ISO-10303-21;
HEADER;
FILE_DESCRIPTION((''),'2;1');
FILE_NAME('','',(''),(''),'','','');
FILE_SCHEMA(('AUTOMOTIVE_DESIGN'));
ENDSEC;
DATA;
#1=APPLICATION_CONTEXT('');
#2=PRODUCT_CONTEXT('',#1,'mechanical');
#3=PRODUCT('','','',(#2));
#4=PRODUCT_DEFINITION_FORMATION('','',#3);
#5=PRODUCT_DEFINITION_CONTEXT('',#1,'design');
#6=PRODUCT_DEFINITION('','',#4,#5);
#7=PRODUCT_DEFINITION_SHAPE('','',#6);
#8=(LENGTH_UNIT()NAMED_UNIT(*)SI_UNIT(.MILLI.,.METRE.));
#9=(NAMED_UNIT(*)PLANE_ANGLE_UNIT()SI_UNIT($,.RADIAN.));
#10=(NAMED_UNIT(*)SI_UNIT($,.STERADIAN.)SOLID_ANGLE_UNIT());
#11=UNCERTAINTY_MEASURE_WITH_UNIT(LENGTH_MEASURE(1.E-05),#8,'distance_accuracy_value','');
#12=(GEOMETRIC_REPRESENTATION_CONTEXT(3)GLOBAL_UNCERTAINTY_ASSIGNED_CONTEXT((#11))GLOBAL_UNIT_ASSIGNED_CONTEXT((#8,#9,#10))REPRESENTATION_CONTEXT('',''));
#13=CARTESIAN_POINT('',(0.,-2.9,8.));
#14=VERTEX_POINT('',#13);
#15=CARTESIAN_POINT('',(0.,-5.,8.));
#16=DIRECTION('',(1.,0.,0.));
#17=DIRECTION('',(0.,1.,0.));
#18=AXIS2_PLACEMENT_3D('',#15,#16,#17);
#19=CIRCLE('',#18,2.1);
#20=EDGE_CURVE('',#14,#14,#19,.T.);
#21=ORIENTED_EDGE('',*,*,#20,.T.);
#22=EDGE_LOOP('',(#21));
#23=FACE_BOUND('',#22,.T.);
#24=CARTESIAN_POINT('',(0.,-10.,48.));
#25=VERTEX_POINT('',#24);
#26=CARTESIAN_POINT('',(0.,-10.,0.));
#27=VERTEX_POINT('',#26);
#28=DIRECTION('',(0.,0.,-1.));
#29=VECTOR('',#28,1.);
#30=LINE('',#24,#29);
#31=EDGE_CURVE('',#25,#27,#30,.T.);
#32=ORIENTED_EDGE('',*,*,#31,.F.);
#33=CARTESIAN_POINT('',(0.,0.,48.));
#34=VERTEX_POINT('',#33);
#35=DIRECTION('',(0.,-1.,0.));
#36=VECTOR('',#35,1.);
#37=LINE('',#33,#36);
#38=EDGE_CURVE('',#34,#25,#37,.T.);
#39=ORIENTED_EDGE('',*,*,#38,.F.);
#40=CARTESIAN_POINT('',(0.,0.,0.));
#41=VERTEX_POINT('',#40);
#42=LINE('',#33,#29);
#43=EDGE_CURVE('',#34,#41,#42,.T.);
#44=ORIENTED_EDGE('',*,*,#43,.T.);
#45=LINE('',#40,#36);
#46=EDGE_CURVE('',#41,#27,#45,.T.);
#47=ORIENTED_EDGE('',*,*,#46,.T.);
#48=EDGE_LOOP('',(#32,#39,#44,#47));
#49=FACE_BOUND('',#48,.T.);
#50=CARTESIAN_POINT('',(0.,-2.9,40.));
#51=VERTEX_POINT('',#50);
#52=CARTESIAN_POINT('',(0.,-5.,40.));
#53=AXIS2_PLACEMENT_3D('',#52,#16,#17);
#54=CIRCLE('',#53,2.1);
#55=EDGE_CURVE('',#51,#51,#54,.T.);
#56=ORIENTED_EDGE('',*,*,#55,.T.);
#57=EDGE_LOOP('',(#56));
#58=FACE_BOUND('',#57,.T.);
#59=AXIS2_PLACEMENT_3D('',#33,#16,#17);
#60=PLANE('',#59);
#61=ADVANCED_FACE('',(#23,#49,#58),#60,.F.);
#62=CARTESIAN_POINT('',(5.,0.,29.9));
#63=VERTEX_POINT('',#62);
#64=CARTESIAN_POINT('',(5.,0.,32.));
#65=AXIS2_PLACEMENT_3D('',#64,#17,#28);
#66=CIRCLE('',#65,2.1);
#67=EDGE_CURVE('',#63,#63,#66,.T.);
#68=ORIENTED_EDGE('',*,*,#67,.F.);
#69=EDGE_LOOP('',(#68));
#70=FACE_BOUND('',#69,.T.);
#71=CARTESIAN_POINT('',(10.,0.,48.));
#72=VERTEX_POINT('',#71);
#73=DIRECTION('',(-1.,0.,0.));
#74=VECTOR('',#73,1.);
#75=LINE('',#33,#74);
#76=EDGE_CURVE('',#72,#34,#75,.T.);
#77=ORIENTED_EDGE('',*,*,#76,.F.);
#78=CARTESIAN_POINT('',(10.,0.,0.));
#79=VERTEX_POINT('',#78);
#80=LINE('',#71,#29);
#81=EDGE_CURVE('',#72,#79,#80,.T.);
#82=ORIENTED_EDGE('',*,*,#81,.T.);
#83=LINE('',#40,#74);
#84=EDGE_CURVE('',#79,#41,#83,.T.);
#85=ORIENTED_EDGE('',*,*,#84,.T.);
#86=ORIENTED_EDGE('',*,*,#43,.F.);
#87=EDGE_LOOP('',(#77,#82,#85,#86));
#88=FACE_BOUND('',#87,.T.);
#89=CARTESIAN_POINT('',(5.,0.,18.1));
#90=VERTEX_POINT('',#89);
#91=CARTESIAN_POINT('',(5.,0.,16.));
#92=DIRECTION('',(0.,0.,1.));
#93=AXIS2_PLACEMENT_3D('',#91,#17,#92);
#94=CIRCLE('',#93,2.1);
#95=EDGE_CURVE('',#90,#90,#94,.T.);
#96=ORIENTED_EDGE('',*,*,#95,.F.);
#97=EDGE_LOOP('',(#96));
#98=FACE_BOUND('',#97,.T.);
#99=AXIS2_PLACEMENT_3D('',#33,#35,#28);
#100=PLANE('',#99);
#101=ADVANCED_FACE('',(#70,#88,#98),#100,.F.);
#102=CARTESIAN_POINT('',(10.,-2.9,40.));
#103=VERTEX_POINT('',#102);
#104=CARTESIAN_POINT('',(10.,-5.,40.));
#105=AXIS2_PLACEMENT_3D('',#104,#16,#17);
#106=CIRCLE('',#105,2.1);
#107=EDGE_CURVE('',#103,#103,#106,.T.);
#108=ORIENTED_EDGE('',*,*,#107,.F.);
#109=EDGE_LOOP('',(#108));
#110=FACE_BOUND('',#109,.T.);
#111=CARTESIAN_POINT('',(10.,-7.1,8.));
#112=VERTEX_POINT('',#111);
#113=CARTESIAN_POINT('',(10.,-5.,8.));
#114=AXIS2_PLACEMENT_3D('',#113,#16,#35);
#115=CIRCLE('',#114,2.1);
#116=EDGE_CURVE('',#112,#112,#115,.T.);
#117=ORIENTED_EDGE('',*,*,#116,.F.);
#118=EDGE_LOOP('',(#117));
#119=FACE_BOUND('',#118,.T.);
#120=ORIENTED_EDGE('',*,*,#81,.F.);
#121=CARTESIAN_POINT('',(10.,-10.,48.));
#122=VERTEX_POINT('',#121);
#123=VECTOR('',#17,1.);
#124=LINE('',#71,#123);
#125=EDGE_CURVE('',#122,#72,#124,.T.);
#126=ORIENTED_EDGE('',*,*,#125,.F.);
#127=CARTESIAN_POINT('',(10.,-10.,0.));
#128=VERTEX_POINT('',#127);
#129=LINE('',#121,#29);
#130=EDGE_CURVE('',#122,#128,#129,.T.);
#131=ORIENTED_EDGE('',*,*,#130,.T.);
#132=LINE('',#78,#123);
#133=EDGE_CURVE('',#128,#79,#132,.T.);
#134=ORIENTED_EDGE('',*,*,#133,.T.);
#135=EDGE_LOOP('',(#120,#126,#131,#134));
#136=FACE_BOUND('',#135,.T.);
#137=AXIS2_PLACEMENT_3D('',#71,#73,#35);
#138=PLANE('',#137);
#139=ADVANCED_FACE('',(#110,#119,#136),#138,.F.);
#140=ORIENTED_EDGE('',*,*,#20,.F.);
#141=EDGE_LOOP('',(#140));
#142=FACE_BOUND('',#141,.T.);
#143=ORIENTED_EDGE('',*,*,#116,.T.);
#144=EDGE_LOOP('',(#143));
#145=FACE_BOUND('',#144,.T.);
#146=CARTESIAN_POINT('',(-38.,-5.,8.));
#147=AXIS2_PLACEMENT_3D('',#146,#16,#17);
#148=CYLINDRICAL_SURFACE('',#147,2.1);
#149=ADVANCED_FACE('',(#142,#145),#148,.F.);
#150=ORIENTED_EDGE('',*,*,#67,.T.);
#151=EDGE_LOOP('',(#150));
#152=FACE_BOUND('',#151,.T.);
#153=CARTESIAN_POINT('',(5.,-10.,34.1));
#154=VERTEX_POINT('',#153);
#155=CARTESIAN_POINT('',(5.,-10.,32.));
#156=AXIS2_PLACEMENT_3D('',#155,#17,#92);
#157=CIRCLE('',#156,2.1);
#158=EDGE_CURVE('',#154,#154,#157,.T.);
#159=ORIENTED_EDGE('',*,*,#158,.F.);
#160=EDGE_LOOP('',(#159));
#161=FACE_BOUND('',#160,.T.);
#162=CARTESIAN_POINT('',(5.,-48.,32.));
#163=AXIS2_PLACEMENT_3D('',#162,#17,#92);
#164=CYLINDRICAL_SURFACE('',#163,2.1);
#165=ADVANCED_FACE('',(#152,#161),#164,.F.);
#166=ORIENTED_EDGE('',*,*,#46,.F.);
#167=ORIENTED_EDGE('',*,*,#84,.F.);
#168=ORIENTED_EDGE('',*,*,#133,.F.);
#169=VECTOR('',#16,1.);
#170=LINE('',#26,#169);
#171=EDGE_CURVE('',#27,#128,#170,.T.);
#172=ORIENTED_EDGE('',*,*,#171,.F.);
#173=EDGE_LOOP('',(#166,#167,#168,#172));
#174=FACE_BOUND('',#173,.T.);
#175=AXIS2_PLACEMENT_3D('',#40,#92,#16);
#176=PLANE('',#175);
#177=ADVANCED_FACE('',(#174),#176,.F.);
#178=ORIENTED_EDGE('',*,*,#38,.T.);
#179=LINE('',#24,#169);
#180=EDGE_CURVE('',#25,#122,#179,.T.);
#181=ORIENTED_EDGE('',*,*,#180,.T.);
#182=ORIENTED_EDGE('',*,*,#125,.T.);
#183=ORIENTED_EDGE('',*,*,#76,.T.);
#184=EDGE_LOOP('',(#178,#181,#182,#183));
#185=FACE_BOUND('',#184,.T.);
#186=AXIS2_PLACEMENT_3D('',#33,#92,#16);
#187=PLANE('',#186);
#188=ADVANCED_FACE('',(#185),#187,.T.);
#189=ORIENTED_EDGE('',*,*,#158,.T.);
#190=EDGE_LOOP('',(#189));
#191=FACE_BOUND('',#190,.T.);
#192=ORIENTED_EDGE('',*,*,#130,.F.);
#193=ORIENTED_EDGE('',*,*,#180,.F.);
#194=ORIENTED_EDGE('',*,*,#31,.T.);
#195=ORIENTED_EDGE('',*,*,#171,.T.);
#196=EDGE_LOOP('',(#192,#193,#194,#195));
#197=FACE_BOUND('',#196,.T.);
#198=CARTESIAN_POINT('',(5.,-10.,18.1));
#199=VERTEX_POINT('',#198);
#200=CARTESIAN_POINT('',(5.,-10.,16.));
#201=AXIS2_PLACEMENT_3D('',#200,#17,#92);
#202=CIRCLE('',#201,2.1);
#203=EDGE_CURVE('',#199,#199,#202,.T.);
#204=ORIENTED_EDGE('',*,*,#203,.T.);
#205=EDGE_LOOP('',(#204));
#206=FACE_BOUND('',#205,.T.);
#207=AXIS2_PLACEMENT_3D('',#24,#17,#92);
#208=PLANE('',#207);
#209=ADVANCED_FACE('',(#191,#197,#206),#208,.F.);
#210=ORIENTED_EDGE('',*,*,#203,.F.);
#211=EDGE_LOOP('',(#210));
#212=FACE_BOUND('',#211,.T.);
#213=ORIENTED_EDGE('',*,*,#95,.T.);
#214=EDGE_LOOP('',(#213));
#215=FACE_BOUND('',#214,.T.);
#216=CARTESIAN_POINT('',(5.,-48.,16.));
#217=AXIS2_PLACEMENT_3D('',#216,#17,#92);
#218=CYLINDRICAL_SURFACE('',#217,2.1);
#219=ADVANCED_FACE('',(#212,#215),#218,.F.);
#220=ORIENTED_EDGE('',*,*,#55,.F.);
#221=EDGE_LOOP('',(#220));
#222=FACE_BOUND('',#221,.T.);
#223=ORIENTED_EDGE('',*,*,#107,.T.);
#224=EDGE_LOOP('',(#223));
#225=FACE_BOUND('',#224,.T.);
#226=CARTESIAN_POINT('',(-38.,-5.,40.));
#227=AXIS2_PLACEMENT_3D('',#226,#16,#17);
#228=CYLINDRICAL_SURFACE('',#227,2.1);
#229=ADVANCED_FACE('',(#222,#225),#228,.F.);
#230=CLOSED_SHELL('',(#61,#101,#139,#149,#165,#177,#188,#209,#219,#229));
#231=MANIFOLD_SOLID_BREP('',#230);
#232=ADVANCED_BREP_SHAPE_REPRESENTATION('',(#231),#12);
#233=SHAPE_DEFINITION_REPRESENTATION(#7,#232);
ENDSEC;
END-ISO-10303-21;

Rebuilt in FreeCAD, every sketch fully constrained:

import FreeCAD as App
import Part
import Sketcher


def add_polygon(sketch, points):
    """Adds a closed chain of lines whose ends are joined by coincident constraints."""
    first, n = sketch.GeometryCount, len(points)
    for a, b in zip(points, points[1:] + points[:1]):
        sketch.addGeometry(Part.LineSegment(App.Vector(*a, 0), App.Vector(*b, 0)), False)
    for i in range(n):
        sketch.addConstraint(Sketcher.Constraint("Coincident", first + i, 2, first + (i + 1) % n, 1))

doc = App.newDocument("Part")
params = doc.addObject("Spreadsheet::Sheet", "Params")
for row, (alias, value) in enumerate([
    ("sketch1_width", "10 mm"),
    ("pad1_length", "48 mm"),
    ("sketch2_diameter", "4.2 mm"),
    ("pocket1_length", "48 mm"),
    ("sketch3_diameter", "4.2 mm"),
    ("pocket2_length", "48 mm"),
], start=1):
    params.set(f"A{row}", alias)
    params.set(f"B{row}", "=" + value)
    params.setAlias(f"B{row}", alias)

body = doc.addObject("PartDesign::Body", "Body")

# Sketch on XY plane
sketch1 = body.newObject("Sketcher::SketchObject", "Sketch")
sketch1.AttachmentSupport = (doc.getObject("XY_Plane"), [""])
sketch1.MapMode = "FlatFace"
add_polygon(sketch1, [(0, 0), (0, -10), (10, -10), (10, 0)])  # lines 0-3
sketch1.addConstraint([
    Sketcher.Constraint("Vertical", 0),
    Sketcher.Constraint("Horizontal", 1),
    Sketcher.Constraint("Vertical", 2),
    Sketcher.Constraint("Horizontal", 3),
    Sketcher.Constraint("Coincident", 3, 2, -1, 1),
    Sketcher.Constraint("Equal", 3, 0),
    Sketcher.Constraint("DistanceX", 1, 1, 1, 2, 10.0),
])
sketch1.setExpression("Constraints[10]", "Params.sketch1_width")
pad1 = body.newObject("PartDesign::Pad", "Pad")
pad1.Profile = sketch1
pad1.setExpression("Length", "Params.pad1_length")

# Sketch on YZ plane
sketch2 = body.newObject("Sketcher::SketchObject", "Sketch001")
sketch2.AttachmentSupport = (doc.getObject("YZ_Plane"), [""])
sketch2.MapMode = "FlatFace"
sketch2.AttachmentOffset = App.Placement(App.Vector(0, 0, 10), App.Rotation())
sketch2.addGeometry([
    Part.Circle(App.Vector(-5, 40, 0), App.Vector(0, 0, 1), 2.1),
    Part.Circle(App.Vector(-5, 8, 0), App.Vector(0, 0, 1), 2.1),
], False)
sketch2.addConstraint([
    Sketcher.Constraint("Equal", 0, 1),
    Sketcher.Constraint("Vertical", 0, 3, 1, 3),
    Sketcher.Constraint("Diameter", 0, 4.2),
    Sketcher.Constraint("DistanceX", 0, 3, -1, 1, 5.0),
    Sketcher.Constraint("DistanceY", -1, 1, 0, 3, 40.0),
    Sketcher.Constraint("DistanceY", -1, 1, 1, 3, 8.0),
])
sketch2.setExpression("Constraints[2]", "Params.sketch2_diameter")
pocket1 = body.newObject("PartDesign::Pocket", "Pocket")
pocket1.Profile = sketch2
pocket1.setExpression("Length", "Params.pocket1_length")

# Sketch on XZ plane
sketch3 = body.newObject("Sketcher::SketchObject", "Sketch002")
sketch3.AttachmentSupport = (doc.getObject("XZ_Plane"), [""])
sketch3.MapMode = "FlatFace"
sketch3.addGeometry([
    Part.Circle(App.Vector(5, 16, 0), App.Vector(0, 0, 1), 2.1),
    Part.Circle(App.Vector(5, 32, 0), App.Vector(0, 0, 1), 2.1),
], False)
sketch3.addConstraint([
    Sketcher.Constraint("Equal", 0, 1),
    Sketcher.Constraint("Vertical", 0, 3, 1, 3),
    Sketcher.Constraint("Diameter", 0, 4.2),
    Sketcher.Constraint("DistanceX", -1, 1, 0, 3, 5.0),
    Sketcher.Constraint("DistanceY", -1, 1, 0, 3, 16.0),
    Sketcher.Constraint("DistanceY", -1, 1, 1, 3, 32.0),
])
sketch3.setExpression("Constraints[2]", "Params.sketch3_diameter")
pocket2 = body.newObject("PartDesign::Pocket", "Pocket001")
pocket2.Profile = sketch3
pocket2.setExpression("Length", "Params.pocket2_length")
pocket2.Reversed = True

doc.recompute()
